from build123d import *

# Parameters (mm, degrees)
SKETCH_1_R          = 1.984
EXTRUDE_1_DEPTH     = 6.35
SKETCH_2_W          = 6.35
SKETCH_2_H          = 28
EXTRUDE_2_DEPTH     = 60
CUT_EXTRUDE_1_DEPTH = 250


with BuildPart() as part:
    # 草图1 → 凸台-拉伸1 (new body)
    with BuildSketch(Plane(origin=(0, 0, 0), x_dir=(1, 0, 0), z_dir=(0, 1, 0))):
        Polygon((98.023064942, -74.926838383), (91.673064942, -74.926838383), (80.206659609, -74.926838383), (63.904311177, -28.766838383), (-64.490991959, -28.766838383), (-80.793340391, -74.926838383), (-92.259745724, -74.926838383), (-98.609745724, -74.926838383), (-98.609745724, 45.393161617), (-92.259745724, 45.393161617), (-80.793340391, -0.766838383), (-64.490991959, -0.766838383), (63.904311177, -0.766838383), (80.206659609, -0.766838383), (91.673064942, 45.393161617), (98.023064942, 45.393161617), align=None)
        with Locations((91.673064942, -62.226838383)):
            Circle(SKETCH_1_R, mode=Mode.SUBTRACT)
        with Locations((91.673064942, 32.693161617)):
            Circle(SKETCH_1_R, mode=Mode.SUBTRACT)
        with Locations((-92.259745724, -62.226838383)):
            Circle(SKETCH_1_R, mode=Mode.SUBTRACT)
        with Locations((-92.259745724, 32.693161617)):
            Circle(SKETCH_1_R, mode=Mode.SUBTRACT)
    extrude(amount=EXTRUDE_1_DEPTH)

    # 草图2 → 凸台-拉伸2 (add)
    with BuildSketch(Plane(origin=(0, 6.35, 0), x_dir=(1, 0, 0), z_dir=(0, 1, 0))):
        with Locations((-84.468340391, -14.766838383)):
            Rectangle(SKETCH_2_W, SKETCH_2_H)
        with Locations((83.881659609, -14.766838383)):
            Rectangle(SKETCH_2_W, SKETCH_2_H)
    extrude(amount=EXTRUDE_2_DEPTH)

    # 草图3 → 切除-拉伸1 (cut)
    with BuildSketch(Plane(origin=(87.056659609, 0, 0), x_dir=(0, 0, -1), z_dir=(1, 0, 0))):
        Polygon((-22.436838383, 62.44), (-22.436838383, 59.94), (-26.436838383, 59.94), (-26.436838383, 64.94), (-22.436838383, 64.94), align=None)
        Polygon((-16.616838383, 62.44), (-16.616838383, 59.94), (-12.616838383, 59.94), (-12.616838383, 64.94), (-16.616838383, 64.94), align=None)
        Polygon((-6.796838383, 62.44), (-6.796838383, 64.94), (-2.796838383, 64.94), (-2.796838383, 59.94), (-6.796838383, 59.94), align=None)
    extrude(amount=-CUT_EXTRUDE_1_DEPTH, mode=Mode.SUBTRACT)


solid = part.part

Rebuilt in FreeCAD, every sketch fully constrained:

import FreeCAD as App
import Part
import Sketcher

V = App.Vector


def add_polygon(sketch, points):
    """Adds a closed chain of lines whose ends are joined by coincident constraints."""
    first, n = sketch.GeometryCount, len(points)
    for a, b in zip(points, points[1:] + points[:1]):
        sketch.addGeometry(Part.LineSegment(App.Vector(*a, 0), App.Vector(*b, 0)), False)
    for i in range(n):
        sketch.addConstraint(Sketcher.Constraint("Coincident", first + i, 2, first + (i + 1) % n, 1))

doc = App.newDocument("Part")
body = doc.addObject("PartDesign::Body", "Body")

# Sketch on XZ plane
sketch1 = doc.addObject("Sketcher::SketchObject", "Sketch")
body.addObject(sketch1)
sketch1.AttachmentSupport = (doc.XZ_Plane, [""])
sketch1.MapMode = "FlatFace"
add_polygon(sketch1, [(80.20666, 74.926838), (98.023065, 74.926838), (98.023065, -45.393162), (91.673065, -45.393162), (80.20666, 0.766838), (-80.79334, 0.766838), (-92.259746, -45.393162), (-98.609746, -45.393162), (-98.609746, 74.926838), (-80.79334, 74.926838), (-64.490992, 28.766838), (63.904311, 28.766838)])  # lines 0-11
sketch1.addGeometry(Part.Circle(V(91.673065, 62.226838, 0), V(0, 0, 1), 1.984), False)  # 12
sketch1.addGeometry(Part.Circle(V(-92.259746, 62.226838, 0), V(0, 0, 1), 1.984), False)  # 13
sketch1.addGeometry(Part.Circle(V(91.673065, -32.693162, 0), V(0, 0, 1), 1.984), False)  # 14
sketch1.addGeometry(Part.Circle(V(-92.259746, -32.693162, 0), V(0, 0, 1), 1.984), False)  # 15
sketch1.addConstraint([
    Sketcher.Constraint("Horizontal", 0),
    Sketcher.Constraint("Vertical", 1),
    Sketcher.Constraint("Horizontal", 2),
    Sketcher.Constraint("Horizontal", 4),
    Sketcher.Constraint("Horizontal", 6),
    Sketcher.Constraint("Vertical", 7),
    Sketcher.Constraint("Horizontal", 8),
    Sketcher.Constraint("Horizontal", 10),
    Sketcher.Constraint("Equal", 12, 13),
    Sketcher.Constraint("Equal", 13, 14),
    Sketcher.Constraint("Equal", 14, 15),
    Sketcher.Constraint("Horizontal", 12, 3, 13, 3),
    Sketcher.Constraint("Horizontal", 14, 3, 15, 3),
    Sketcher.Constraint("Horizontal", 2, 2, 5, 2),
    Sketcher.Constraint("Horizontal", 0, 2, 7, 2),
    Sketcher.Constraint("Vertical", 12, 3, 14, 3),
    Sketcher.Constraint("Vertical", 13, 3, 15, 3),
    Sketcher.Constraint("Vertical", 14, 3, 2, 2),
    Sketcher.Constraint("Vertical", 15, 3, 5, 2),
    Sketcher.Constraint("Vertical", 4, 2, 8, 2),
    Sketcher.Constraint("Vertical", 3, 2, 11, 2),
    Sketcher.Constraint("Equal", 2, 6),
    Sketcher.Constraint("Equal", 0, 8),
    Sketcher.Constraint("Equal", 9, 11),
    Sketcher.Constraint("DistanceX", 4, 2, 4, 1, 161.0),
    Sketcher.Constraint("Diameter", 12, 3.968),
    Sketcher.Constraint("DistanceY", 4, 2, 9, 2, 28.0),
    Sketcher.Constraint("DistanceX", 2, 2, 2, 1, 6.35),
    Sketcher.Constraint("DistanceY", 1, 2, 1, 1, 120.32),
    Sketcher.Constraint("DistanceY", 12, 3, 0, 2, 12.7),
    Sketcher.Constraint("DistanceY", 1, 2, 14, 3, 12.7),
    Sketcher.Constraint("DistanceY", 14, 3, 3, 2, 33.46),
    Sketcher.Constraint("DistanceX", 0, 1, 0, 2, 17.816405),
    Sketcher.Constraint("DistanceX", 10, 1, 10, 2, 128.395303),
    Sketcher.Constraint("DistanceY", -1, 1, 12, 3, 62.226838),
    Sketcher.Constraint("DistanceX", -1, 1, 3, 2, 80.20666),
])
pad1 = doc.addObject("PartDesign::Pad", "Pad")
body.addObject(pad1)
pad1.Profile = sketch1
pad1.Length = 6.35
pad1.Reversed = True

# Sketch on XZ plane
sketch2 = doc.addObject("Sketcher::SketchObject", "Sketch001")
body.addObject(sketch2)
sketch2.AttachmentSupport = (doc.XZ_Plane, [""])
sketch2.MapMode = "FlatFace"
sketch2.AttachmentOffset = App.Placement(V(0, 0, -6.35), App.Rotation())
add_polygon(sketch2, [(-87.64334, 0.766838), (-87.64334, 28.766838), (-81.29334, 28.766838), (-81.29334, 0.766838)])  # lines 0-3
add_polygon(sketch2, [(80.70666, 0.766838), (80.70666, 28.766838), (87.05666, 28.766838), (87.05666, 0.766838)])  # lines 4-7
sketch2.addConstraint([
    Sketcher.Constraint("Vertical", 0),
    Sketcher.Constraint("Horizontal", 1),
    Sketcher.Constraint("Vertical", 2),
    Sketcher.Constraint("Horizontal", 3),
    Sketcher.Constraint("Vertical", 4),
    Sketcher.Constraint("Horizontal", 5),
    Sketcher.Constraint("Vertical", 6),
    Sketcher.Constraint("Horizontal", 7),
    Sketcher.Constraint("Horizontal", 1, 2, 4, 2),
    Sketcher.Constraint("Horizontal", 3, 2, 6, 2),
    Sketcher.Constraint("Equal", 3, 5),
    Sketcher.Constraint("DistanceY", 0, 1, 0, 2, 28.0),
    Sketcher.Constraint("DistanceX", 1, 2, 4, 2, 162.0),
    Sketcher.Constraint("DistanceX", 1, 1, 1, 2, 6.35),
    Sketcher.Constraint("DistanceX", 0, 2, -1, 1, 87.64334),
    Sketcher.Constraint("DistanceY", -1, 1, 0, 2, 28.766838),
])
pad2 = doc.addObject("PartDesign::Pad", "Pad001")
body.addObject(pad2)
pad2.Profile = sketch2
pad2.Length = 60
pad2.Reversed = True

# Sketch on YZ plane
sketch3 = doc.addObject("Sketcher::SketchObject", "Sketch002")
body.addObject(sketch3)
sketch3.AttachmentSupport = (doc.YZ_Plane, [""])
sketch3.MapMode = "FlatFace"
sketch3.AttachmentOffset = App.Placement(V(0, 0, 87.05666), App.Rotation())
add_polygon(sketch3, [(59.94, 22.436838), (64.94, 22.436838), (64.94, 26.436838), (59.94, 26.436838)])  # lines 0-3
add_polygon(sketch3, [(59.94, 16.616838), (59.94, 12.616838), (64.94, 12.616838), (64.94, 16.616838)])  # lines 4-7
add_polygon(sketch3, [(64.94, 6.796838), (59.94, 6.796838), (59.94, 2.796838), (64.94, 2.796838)])  # lines 8-11
sketch3.addConstraint([
    Sketcher.Constraint("Horizontal", 0),
    Sketcher.Constraint("Vertical", 1),
    Sketcher.Constraint("Horizontal", 2),
    Sketcher.Constraint("Vertical", 3),
    Sketcher.Constraint("Vertical", 4),
    Sketcher.Constraint("Horizontal", 5),
    Sketcher.Constraint("Vertical", 6),
    Sketcher.Constraint("Horizontal", 7),
    Sketcher.Constraint("Horizontal", 8),
    Sketcher.Constraint("Vertical", 9),
    Sketcher.Constraint("Horizontal", 10),
    Sketcher.Constraint("Vertical", 11),
    Sketcher.Constraint("Vertical", 3, 2, 4, 2),
    Sketcher.Constraint("Vertical", 1, 2, 5, 2),
    Sketcher.Constraint("Vertical", 7, 2, 8, 2),
    Sketcher.Constraint("Vertical", 6, 2, 10, 2),
    Sketcher.Constraint("Equal", 3, 4),
    Sketcher.Constraint("Equal", 6, 9),
    Sketcher.Constraint("DistanceX", 0, 1, 0, 2, 5.0),
    Sketcher.Constraint("DistanceY", 1, 1, 1, 2, 4.0),
    Sketcher.Constraint("DistanceX", -1, 1, 0, 2, 64.94),
    Sketcher.Constraint("DistanceY", 4, 2, 3, 2, 9.82),
    Sketcher.Constraint("DistanceY", 8, 2, 4, 2, 5.82),
    Sketcher.Constraint("DistanceY", -1, 1, 0, 2, 22.436838),
])
pocket1 = doc.addObject("PartDesign::Pocket", "Pocket")
body.addObject(pocket1)
pocket1.Profile = sketch3
pocket1.Length = 250

doc.recompute()
